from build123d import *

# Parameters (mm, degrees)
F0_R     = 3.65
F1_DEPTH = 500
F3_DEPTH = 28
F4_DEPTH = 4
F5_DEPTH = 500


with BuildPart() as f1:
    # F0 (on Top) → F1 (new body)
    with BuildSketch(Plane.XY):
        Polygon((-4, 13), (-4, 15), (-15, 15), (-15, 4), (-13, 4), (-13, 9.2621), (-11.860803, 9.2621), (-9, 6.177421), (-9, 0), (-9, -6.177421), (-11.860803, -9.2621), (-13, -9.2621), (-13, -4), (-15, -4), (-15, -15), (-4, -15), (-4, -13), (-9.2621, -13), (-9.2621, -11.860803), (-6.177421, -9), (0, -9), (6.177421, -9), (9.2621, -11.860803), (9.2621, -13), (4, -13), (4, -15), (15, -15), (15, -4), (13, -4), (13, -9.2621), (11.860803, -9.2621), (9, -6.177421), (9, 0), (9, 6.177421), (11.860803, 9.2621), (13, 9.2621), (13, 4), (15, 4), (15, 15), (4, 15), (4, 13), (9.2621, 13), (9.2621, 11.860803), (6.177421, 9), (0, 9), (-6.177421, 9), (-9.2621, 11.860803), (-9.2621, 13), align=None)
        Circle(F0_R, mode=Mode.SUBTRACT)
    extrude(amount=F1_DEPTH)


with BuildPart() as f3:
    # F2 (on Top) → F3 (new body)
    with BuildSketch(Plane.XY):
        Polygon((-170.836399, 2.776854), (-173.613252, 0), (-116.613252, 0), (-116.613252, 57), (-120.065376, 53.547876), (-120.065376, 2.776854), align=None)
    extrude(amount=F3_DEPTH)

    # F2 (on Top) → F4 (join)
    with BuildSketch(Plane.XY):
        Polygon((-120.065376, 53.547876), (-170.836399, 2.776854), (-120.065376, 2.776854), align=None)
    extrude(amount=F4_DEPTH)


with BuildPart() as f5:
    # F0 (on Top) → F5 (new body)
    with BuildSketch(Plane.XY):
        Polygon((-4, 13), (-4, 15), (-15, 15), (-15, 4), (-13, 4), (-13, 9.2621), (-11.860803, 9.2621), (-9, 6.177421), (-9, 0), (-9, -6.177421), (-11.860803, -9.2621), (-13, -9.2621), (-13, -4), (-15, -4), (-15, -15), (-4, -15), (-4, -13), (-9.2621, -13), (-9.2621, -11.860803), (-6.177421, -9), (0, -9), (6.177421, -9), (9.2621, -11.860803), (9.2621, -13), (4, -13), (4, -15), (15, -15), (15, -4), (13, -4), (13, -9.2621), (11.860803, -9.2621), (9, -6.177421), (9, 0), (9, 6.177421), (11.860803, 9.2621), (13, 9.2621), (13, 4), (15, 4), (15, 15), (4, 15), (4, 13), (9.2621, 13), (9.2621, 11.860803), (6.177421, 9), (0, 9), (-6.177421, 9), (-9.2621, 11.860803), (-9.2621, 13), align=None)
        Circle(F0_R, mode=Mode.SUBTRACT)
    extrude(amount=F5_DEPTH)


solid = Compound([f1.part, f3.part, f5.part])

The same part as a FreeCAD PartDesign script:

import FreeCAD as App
import Part
import Sketcher

V = App.Vector

doc = App.newDocument("Part")
body = doc.addObject("PartDesign::Body", "Body")

# Sketch on XY plane
sketch1 = body.newObject("Sketcher::SketchObject", "Sketch")
sketch1.AttachmentSupport = (doc.getObject("XY_Plane"), [""])
sketch1.MapMode = "FlatFace"
sketch1.addGeometry(Part.LineSegment(V(-4, 13, 0), V(-4, 15, 0)), False)
sketch1.addGeometry(Part.LineSegment(V(-4, 15, 0), V(-15, 15, 0)), False)
sketch1.addGeometry(Part.LineSegment(V(-15, 15, 0), V(-15, 4, 0)), False)
sketch1.addGeometry(Part.LineSegment(V(-15, 4, 0), V(-13, 4, 0)), False)
sketch1.addGeometry(Part.LineSegment(V(-13, 4, 0), V(-13, 9.3, 0)), False)
sketch1.addGeometry(Part.LineSegment(V(-13, 9.3, 0), V(-11.9, 9.3, 0)), False)
sketch1.addGeometry(Part.LineSegment(V(-11.9, 9.3, 0), V(-9, 6.2, 0)), False)
sketch1.addGeometry(Part.LineSegment(V(-9, 6.2, 0), V(-9, -6.2, 0)), False)
sketch1.addGeometry(Part.LineSegment(V(-9, -6.2, 0), V(-11.9, -9.3, 0)), False)
sketch1.addGeometry(Part.LineSegment(V(-11.9, -9.3, 0), V(-13, -9.3, 0)), False)
sketch1.addGeometry(Part.LineSegment(V(-13, -9.3, 0), V(-13, -4, 0)), False)
sketch1.addGeometry(Part.LineSegment(V(-13, -4, 0), V(-15, -4, 0)), False)
sketch1.addGeometry(Part.LineSegment(V(-15, -4, 0), V(-15, -15, 0)), False)
sketch1.addGeometry(Part.LineSegment(V(-15, -15, 0), V(-4, -15, 0)), False)
sketch1.addGeometry(Part.LineSegment(V(-4, -15, 0), V(-4, -13, 0)), False)
sketch1.addGeometry(Part.LineSegment(V(-4, -13, 0), V(-9.3, -13, 0)), False)
sketch1.addGeometry(Part.LineSegment(V(-9.3, -13, 0), V(-9.3, -11.9, 0)), False)
sketch1.addGeometry(Part.LineSegment(V(-9.3, -11.9, 0), V(-6.2, -9, 0)), False)
sketch1.addGeometry(Part.LineSegment(V(-6.2, -9, 0), V(6.2, -9, 0)), False)
sketch1.addGeometry(Part.LineSegment(V(6.2, -9, 0), V(9.3, -11.9, 0)), False)
sketch1.addGeometry(Part.LineSegment(V(9.3, -11.9, 0), V(9.3, -13, 0)), False)
sketch1.addGeometry(Part.LineSegment(V(9.3, -13, 0), V(4, -13, 0)), False)
sketch1.addGeometry(Part.LineSegment(V(4, -13, 0), V(4, -15, 0)), False)
sketch1.addGeometry(Part.LineSegment(V(4, -15, 0), V(15, -15, 0)), False)
sketch1.addGeometry(Part.LineSegment(V(15, -15, 0), V(15, -4, 0)), False)
sketch1.addGeometry(Part.LineSegment(V(15, -4, 0), V(13, -4, 0)), False)
sketch1.addGeometry(Part.LineSegment(V(13, -4, 0), V(13, -9.3, 0)), False)
sketch1.addGeometry(Part.LineSegment(V(13, -9.3, 0), V(11.9, -9.3, 0)), False)
sketch1.addGeometry(Part.LineSegment(V(11.9, -9.3, 0), V(9, -6.2, 0)), False)
sketch1.addGeometry(Part.LineSegment(V(9, -6.2, 0), V(9, 6.2, 0)), False)
sketch1.addGeometry(Part.LineSegment(V(9, 6.2, 0), V(11.9, 9.3, 0)), False)
sketch1.addGeometry(Part.LineSegment(V(11.9, 9.3, 0), V(13, 9.3, 0)), False)
sketch1.addGeometry(Part.LineSegment(V(13, 9.3, 0), V(13, 4, 0)), False)
sketch1.addGeometry(Part.LineSegment(V(13, 4, 0), V(15, 4, 0)), False)
sketch1.addGeometry(Part.LineSegment(V(15, 4, 0), V(15, 15, 0)), False)
sketch1.addGeometry(Part.LineSegment(V(15, 15, 0), V(4, 15, 0)), False)
sketch1.addGeometry(Part.LineSegment(V(4, 15, 0), V(4, 13, 0)), False)
sketch1.addGeometry(Part.LineSegment(V(4, 13, 0), V(9.3, 13, 0)), False)
sketch1.addGeometry(Part.LineSegment(V(9.3, 13, 0), V(9.3, 11.9, 0)), False)
sketch1.addGeometry(Part.LineSegment(V(9.3, 11.9, 0), V(6.2, 9, 0)), False)
sketch1.addGeometry(Part.LineSegment(V(6.2, 9, 0), V(-6.2, 9, 0)), False)
sketch1.addGeometry(Part.LineSegment(V(-6.2, 9, 0), V(-9.3, 11.9, 0)), False)
sketch1.addGeometry(Part.LineSegment(V(-9.3, 11.9, 0), V(-9.3, 13, 0)), False)
sketch1.addGeometry(Part.LineSegment(V(-9.3, 13, 0), V(-4, 13, 0)), False)
sketch1.addGeometry(Part.Circle(V(0, 0, 0), V(0, 0, 1), 3.6), False)
sketch1.addConstraint(Sketcher.Constraint("Coincident", 0, 2, 1, 1))
sketch1.addConstraint(Sketcher.Constraint("Coincident", 1, 2, 2, 1))
sketch1.addConstraint(Sketcher.Constraint("Coincident", 2, 2, 3, 1))
sketch1.addConstraint(Sketcher.Constraint("Coincident", 3, 2, 4, 1))
sketch1.addConstraint(Sketcher.Constraint("Coincident", 4, 2, 5, 1))
sketch1.addConstraint(Sketcher.Constraint("Coincident", 5, 2, 6, 1))
sketch1.addConstraint(Sketcher.Constraint("Coincident", 6, 2, 7, 1))
sketch1.addConstraint(Sketcher.Constraint("Coincident", 7, 2, 8, 1))
sketch1.addConstraint(Sketcher.Constraint("Coincident", 8, 2, 9, 1))
sketch1.addConstraint(Sketcher.Constraint("Coincident", 9, 2, 10, 1))
sketch1.addConstraint(Sketcher.Constraint("Coincident", 10, 2, 11, 1))
sketch1.addConstraint(Sketcher.Constraint("Coincident", 11, 2, 12, 1))
sketch1.addConstraint(Sketcher.Constraint("Coincident", 12, 2, 13, 1))
sketch1.addConstraint(Sketcher.Constraint("Coincident", 13, 2, 14, 1))
sketch1.addConstraint(Sketcher.Constraint("Coincident", 14, 2, 15, 1))
sketch1.addConstraint(Sketcher.Constraint("Coincident", 15, 2, 16, 1))
sketch1.addConstraint(Sketcher.Constraint("Coincident", 16, 2, 17, 1))
sketch1.addConstraint(Sketcher.Constraint("Coincident", 17, 2, 18, 1))
sketch1.addConstraint(Sketcher.Constraint("Coincident", 18, 2, 19, 1))
sketch1.addConstraint(Sketcher.Constraint("Coincident", 19, 2, 20, 1))
sketch1.addConstraint(Sketcher.Constraint("Coincident", 20, 2, 21, 1))
sketch1.addConstraint(Sketcher.Constraint("Coincident", 21, 2, 22, 1))
sketch1.addConstraint(Sketcher.Constraint("Coincident", 22, 2, 23, 1))
sketch1.addConstraint(Sketcher.Constraint("Coincident", 23, 2, 24, 1))
sketch1.addConstraint(Sketcher.Constraint("Coincident", 24, 2, 25, 1))
sketch1.addConstraint(Sketcher.Constraint("Coincident", 25, 2, 26, 1))
sketch1.addConstraint(Sketcher.Constraint("Coincident", 26, 2, 27, 1))
sketch1.addConstraint(Sketcher.Constraint("Coincident", 27, 2, 28, 1))
sketch1.addConstraint(Sketcher.Constraint("Coincident", 28, 2, 29, 1))
sketch1.addConstraint(Sketcher.Constraint("Coincident", 29, 2, 30, 1))
sketch1.addConstraint(Sketcher.Constraint("Coincident", 30, 2, 31, 1))
sketch1.addConstraint(Sketcher.Constraint("Coincident", 31, 2, 32, 1))
sketch1.addConstraint(Sketcher.Constraint("Coincident", 32, 2, 33, 1))
sketch1.addConstraint(Sketcher.Constraint("Coincident", 33, 2, 34, 1))
sketch1.addConstraint(Sketcher.Constraint("Coincident", 34, 2, 35, 1))
sketch1.addConstraint(Sketcher.Constraint("Coincident", 35, 2, 36, 1))
sketch1.addConstraint(Sketcher.Constraint("Coincident", 36, 2, 37, 1))
sketch1.addConstraint(Sketcher.Constraint("Coincident", 37, 2, 38, 1))
sketch1.addConstraint(Sketcher.Constraint("Coincident", 38, 2, 39, 1))
sketch1.addConstraint(Sketcher.Constraint("Coincident", 39, 2, 40, 1))
sketch1.addConstraint(Sketcher.Constraint("Coincident", 40, 2, 41, 1))
sketch1.addConstraint(Sketcher.Constraint("Coincident", 41, 2, 42, 1))
sketch1.addConstraint(Sketcher.Constraint("Coincident", 42, 2, 43, 1))
sketch1.addConstraint(Sketcher.Constraint("Coincident", 43, 2, 0, 1))
sketch1.addConstraint(Sketcher.Constraint("Vertical", 0))
sketch1.addConstraint(Sketcher.Constraint("Horizontal", 1))
sketch1.addConstraint(Sketcher.Constraint("Vertical", 2))
sketch1.addConstraint(Sketcher.Constraint("Horizontal", 3))
sketch1.addConstraint(Sketcher.Constraint("Vertical", 4))
sketch1.addConstraint(Sketcher.Constraint("Horizontal", 5))
sketch1.addConstraint(Sketcher.Constraint("Vertical", 7))
sketch1.addConstraint(Sketcher.Constraint("Horizontal", 9))
sketch1.addConstraint(Sketcher.Constraint("Vertical", 10))
sketch1.addConstraint(Sketcher.Constraint("Horizontal", 11))
sketch1.addConstraint(Sketcher.Constraint("Vertical", 12))
sketch1.addConstraint(Sketcher.Constraint("Horizontal", 13))
sketch1.addConstraint(Sketcher.Constraint("Vertical", 14))
sketch1.addConstraint(Sketcher.Constraint("Horizontal", 15))
sketch1.addConstraint(Sketcher.Constraint("Vertical", 16))
sketch1.addConstraint(Sketcher.Constraint("Horizontal", 18))
sketch1.addConstraint(Sketcher.Constraint("Vertical", 20))
sketch1.addConstraint(Sketcher.Constraint("Horizontal", 21))
sketch1.addConstraint(Sketcher.Constraint("Vertical", 22))
sketch1.addConstraint(Sketcher.Constraint("Horizontal", 23))
sketch1.addConstraint(Sketcher.Constraint("Vertical", 24))
sketch1.addConstraint(Sketcher.Constraint("Horizontal", 25))
sketch1.addConstraint(Sketcher.Constraint("Vertical", 26))
sketch1.addConstraint(Sketcher.Constraint("Horizontal", 27))
sketch1.addConstraint(Sketcher.Constraint("Vertical", 29))
sketch1.addConstraint(Sketcher.Constraint("Horizontal", 31))
sketch1.addConstraint(Sketcher.Constraint("Vertical", 32))
sketch1.addConstraint(Sketcher.Constraint("Horizontal", 33))
sketch1.addConstraint(Sketcher.Constraint("Vertical", 34))
sketch1.addConstraint(Sketcher.Constraint("Horizontal", 35))
sketch1.addConstraint(Sketcher.Constraint("Vertical", 36))
sketch1.addConstraint(Sketcher.Constraint("Horizontal", 37))
sketch1.addConstraint(Sketcher.Constraint("Vertical", 38))
sketch1.addConstraint(Sketcher.Constraint("Horizontal", 40))
sketch1.addConstraint(Sketcher.Constraint("Vertical", 42))
sketch1.addConstraint(Sketcher.Constraint("Horizontal", 43))
sketch1.addConstraint(Sketcher.Constraint("Coincident", 44, 3, -1, 1))
sketch1.addConstraint(Sketcher.Constraint("Symmetric", 0, 2, 22, 2, -1, 1))
sketch1.addConstraint(Sketcher.Constraint("Symmetric", 2, 2, 24, 2, -1, 1))
sketch1.addConstraint(Sketcher.Constraint("Symmetric", 4, 2, 26, 2, -1, 1))
sketch1.addConstraint(Sketcher.Constraint("Symmetric", 6, 2, 28, 2, -1, 1))
sketch1.addConstraint(Sketcher.Constraint("Symmetric", 8, 2, 30, 2, -1, 1))
sketch1.addConstraint(Sketcher.Constraint("Symmetric", 10, 2, 32, 2, -1, 1))
sketch1.addConstraint(Sketcher.Constraint("Symmetric", 12, 2, 34, 2, -1, 1))
sketch1.addConstraint(Sketcher.Constraint("Symmetric", 14, 2, 36, 2, -1, 1))
sketch1.addConstraint(Sketcher.Constraint("Symmetric", 16, 2, 38, 2, -1, 1))
sketch1.addConstraint(Sketcher.Constraint("Symmetric", 17, 2, 39, 2, -1, 1))
sketch1.addConstraint(Sketcher.Constraint("Symmetric", 19, 2, 41, 2, -1, 1))
sketch1.addConstraint(Sketcher.Constraint("Symmetric", 16, 2, 19, 2, -2))
sketch1.addConstraint(Sketcher.Constraint("Symmetric", 14, 2, 21, 2, -2))
sketch1.addConstraint(Sketcher.Constraint("Symmetric", 12, 2, 23, 2, -2))
sketch1.addConstraint(Sketcher.Constraint("Symmetric", 10, 2, 25, 2, -2))
sketch1.addConstraint(Sketcher.Constraint("Symmetric", 8, 2, 27, 2, -2))
sketch1.addConstraint(Sketcher.Constraint("Perpendicular", 6, 17))
sketch1.addConstraint(Sketcher.Constraint("Perpendicular", 8, 19))
sketch1.addConstraint(Sketcher.Constraint("Perpendicular", 17, 28))
sketch1.addConstraint(Sketcher.Constraint("Perpendicular", 19, 30))
sketch1.addConstraint(Sketcher.Constraint("Perpendicular", 30, 41))
sketch1.addConstraint(Sketcher.Constraint("Horizontal", 7, 2, 28, 2))
sketch1.addConstraint(Sketcher.Constraint("Horizontal", 37, 2, 42, 2))
sketch1.addConstraint(Sketcher.Constraint("Equal", 33, 0))
sketch1.addConstraint(Sketcher.Constraint("Equal", 35, 2))
sketch1.addConstraint(Sketcher.Constraint("Equal", 43, 4))
sketch1.addConstraint(Sketcher.Constraint("Equal", 40, 7))
sketch1.addConstraint(Sketcher.Constraint("Equal", 31, 16))
sketch1.addConstraint(Sketcher.Constraint("Equal", 8, 17))
sketch1.addConstraint(Sketcher.Constraint("Diameter", 44, 7.3))
sketch1.addConstraint(Sketcher.Constraint("DistanceX", 1, 2, 1, 1, 11.0))
sketch1.addConstraint(Sketcher.Constraint("DistanceX", 3, 1, 3, 2, 2.0))
sketch1.addConstraint(Sketcher.Constraint("DistanceX", 0, 2, -1, 1, 4.0))
sketch1.addConstraint(Sketcher.Constraint("DistanceX", 6, 2, -1, 1, 9.0))
sketch1.addConstraint(Sketcher.Constraint("DistanceX", 15, 2, 15, 1, 5.2621))
sketch1.addConstraint(Sketcher.Constraint("Distance", 6, 4.20707))
sketch1.addConstraint(Sketcher.Constraint("DistanceX", 5, 1, 5, 2, 1.139197))
pad1 = body.newObject("PartDesign::Pad", "Pad")
pad1.Profile = sketch1
pad1.Length = 500
body2 = doc.addObject("PartDesign::Body", "Body001")

# Sketch on XY plane
sketch2 = body2.newObject("Sketcher::SketchObject", "Sketch001")
sketch2.AttachmentSupport = (doc.getObject("XY_Plane001"), [""])
sketch2.MapMode = "FlatFace"
sketch2.addGeometry(Part.LineSegment(V(-170.8, 2.8, 0), V(-173.6, 0, 0)), False)
sketch2.addGeometry(Part.LineSegment(V(-173.6, 0, 0), V(-116.6, 0, 0)), False)
sketch2.addGeometry(Part.LineSegment(V(-116.6, 0, 0), V(-116.6, 57, 0)), False)
sketch2.addGeometry(Part.LineSegment(V(-116.6, 57, 0), V(-120.1, 53.5, 0)), False)
sketch2.addGeometry(Part.LineSegment(V(-120.1, 53.5, 0), V(-120.1, 2.8, 0)), False)
sketch2.addGeometry(Part.LineSegment(V(-120.1, 2.8, 0), V(-170.8, 2.8, 0)), False)
sketch2.addConstraint(Sketcher.Constraint("Coincident", 0, 2, 1, 1))
sketch2.addConstraint(Sketcher.Constraint("Coincident", 1, 2, 2, 1))
sketch2.addConstraint(Sketcher.Constraint("Coincident", 2, 2, 3, 1))
sketch2.addConstraint(Sketcher.Constraint("Coincident", 3, 2, 4, 1))
sketch2.addConstraint(Sketcher.Constraint("Coincident", 4, 2, 5, 1))
sketch2.addConstraint(Sketcher.Constraint("Coincident", 5, 2, 0, 1))
sketch2.addConstraint(Sketcher.Constraint("Horizontal", 1))
sketch2.addConstraint(Sketcher.Constraint("Vertical", 2))
sketch2.addConstraint(Sketcher.Constraint("Vertical", 4))
sketch2.addConstraint(Sketcher.Constraint("Horizontal", 5))
sketch2.addConstraint(Sketcher.Constraint("PointOnObject", 0, 2, -1))
sketch2.addConstraint(Sketcher.Constraint("Parallel", 0, 3))
sketch2.addConstraint(Sketcher.Constraint("Equal", 1, 2))
sketch2.addConstraint(Sketcher.Constraint("Equal", 5, 4))
sketch2.addConstraint(Sketcher.Constraint("DistanceX", 1, 1, 1, 2, 57.0))
sketch2.addConstraint(Sketcher.Constraint("DistanceX", 5, 2, -1, 1, 170.836399))
sketch2.addConstraint(Sketcher.Constraint("Distance", 3, 4.882041))
sketch2.addConstraint(Sketcher.Constraint("DistanceX", 5, 2, 5, 1, 50.771023))
pad2 = body2.newObject("PartDesign::Pad", "Pad001")
pad2.Profile = sketch2
pad2.Length = 28

# Sketch on XY plane
sketch3 = body2.newObject("Sketcher::SketchObject", "Sketch002")
sketch3.AttachmentSupport = (doc.getObject("XY_Plane001"), [""])
sketch3.MapMode = "FlatFace"
sketch3.addGeometry(Part.LineSegment(V(-120, 54, 0), V(-171, 3, 0)), False)
sketch3.addGeometry(Part.LineSegment(V(-171, 3, 0), V(-120, 3, 0)), False)
sketch3.addGeometry(Part.LineSegment(V(-120, 3, 0), V(-120, 54, 0)), False)
sketch3.addConstraint(Sketcher.Constraint("Coincident", 0, 2, 1, 1))
sketch3.addConstraint(Sketcher.Constraint("Coincident", 1, 2, 2, 1))
sketch3.addConstraint(Sketcher.Constraint("Coincident", 2, 2, 0, 1))
sketch3.addConstraint(Sketcher.Constraint("Horizontal", 1))
sketch3.addConstraint(Sketcher.Constraint("Vertical", 2))
sketch3.addConstraint(Sketcher.Constraint("Equal", 1, 2))
sketch3.addConstraint(Sketcher.Constraint("DistanceX", 0, 2, -1, 1, 170.836399))
sketch3.addConstraint(Sketcher.Constraint("Distance", 0, 71.801069))
sketch3.addConstraint(Sketcher.Constraint("DistanceY", -1, 1, 0, 2, 2.776854))
pad3 = body2.newObject("PartDesign::Pad", "Pad002")
pad3.Profile = sketch3
pad3.Length = 4
body3 = doc.addObject("PartDesign::Body", "Body002")

# Sketch on XY plane
sketch4 = body3.newObject("Sketcher::SketchObject", "Sketch003")
sketch4.AttachmentSupport = (doc.getObject("XY_Plane002"), [""])
sketch4.MapMode = "FlatFace"
sketch4.addGeometry(Part.LineSegment(V(-4, 13, 0), V(-4, 15, 0)), False)
sketch4.addGeometry(Part.LineSegment(V(-4, 15, 0), V(-15, 15, 0)), False)
sketch4.addGeometry(Part.LineSegment(V(-15, 15, 0), V(-15, 4, 0)), False)
sketch4.addGeometry(Part.LineSegment(V(-15, 4, 0), V(-13, 4, 0)), False)
sketch4.addGeometry(Part.LineSegment(V(-13, 4, 0), V(-13, 9.3, 0)), False)
sketch4.addGeometry(Part.LineSegment(V(-13, 9.3, 0), V(-11.9, 9.3, 0)), False)
sketch4.addGeometry(Part.LineSegment(V(-11.9, 9.3, 0), V(-9, 6.2, 0)), False)
sketch4.addGeometry(Part.LineSegment(V(-9, 6.2, 0), V(-9, -6.2, 0)), False)
sketch4.addGeometry(Part.LineSegment(V(-9, -6.2, 0), V(-11.9, -9.3, 0)), False)
sketch4.addGeometry(Part.LineSegment(V(-11.9, -9.3, 0), V(-13, -9.3, 0)), False)
sketch4.addGeometry(Part.LineSegment(V(-13, -9.3, 0), V(-13, -4, 0)), False)
sketch4.addGeometry(Part.LineSegment(V(-13, -4, 0), V(-15, -4, 0)), False)
sketch4.addGeometry(Part.LineSegment(V(-15, -4, 0), V(-15, -15, 0)), False)
sketch4.addGeometry(Part.LineSegment(V(-15, -15, 0), V(-4, -15, 0)), False)
sketch4.addGeometry(Part.LineSegment(V(-4, -15, 0), V(-4, -13, 0)), False)
sketch4.addGeometry(Part.LineSegment(V(-4, -13, 0), V(-9.3, -13, 0)), False)
sketch4.addGeometry(Part.LineSegment(V(-9.3, -13, 0), V(-9.3, -11.9, 0)), False)
sketch4.addGeometry(Part.LineSegment(V(-9.3, -11.9, 0), V(-6.2, -9, 0)), False)
sketch4.addGeometry(Part.LineSegment(V(-6.2, -9, 0), V(6.2, -9, 0)), False)
sketch4.addGeometry(Part.LineSegment(V(6.2, -9, 0), V(9.3, -11.9, 0)), False)
sketch4.addGeometry(Part.LineSegment(V(9.3, -11.9, 0), V(9.3, -13, 0)), False)
sketch4.addGeometry(Part.LineSegment(V(9.3, -13, 0), V(4, -13, 0)), False)
sketch4.addGeometry(Part.LineSegment(V(4, -13, 0), V(4, -15, 0)), False)
sketch4.addGeometry(Part.LineSegment(V(4, -15, 0), V(15, -15, 0)), False)
sketch4.addGeometry(Part.LineSegment(V(15, -15, 0), V(15, -4, 0)), False)
sketch4.addGeometry(Part.LineSegment(V(15, -4, 0), V(13, -4, 0)), False)
sketch4.addGeometry(Part.LineSegment(V(13, -4, 0), V(13, -9.3, 0)), False)
sketch4.addGeometry(Part.LineSegment(V(13, -9.3, 0), V(11.9, -9.3, 0)), False)
sketch4.addGeometry(Part.LineSegment(V(11.9, -9.3, 0), V(9, -6.2, 0)), False)
sketch4.addGeometry(Part.LineSegment(V(9, -6.2, 0), V(9, 6.2, 0)), False)
sketch4.addGeometry(Part.LineSegment(V(9, 6.2, 0), V(11.9, 9.3, 0)), False)
sketch4.addGeometry(Part.LineSegment(V(11.9, 9.3, 0), V(13, 9.3, 0)), False)
sketch4.addGeometry(Part.LineSegment(V(13, 9.3, 0), V(13, 4, 0)), False)
sketch4.addGeometry(Part.LineSegment(V(13, 4, 0), V(15, 4, 0)), False)
sketch4.addGeometry(Part.LineSegment(V(15, 4, 0), V(15, 15, 0)), False)
sketch4.addGeometry(Part.LineSegment(V(15, 15, 0), V(4, 15, 0)), False)
sketch4.addGeometry(Part.LineSegment(V(4, 15, 0), V(4, 13, 0)), False)
sketch4.addGeometry(Part.LineSegment(V(4, 13, 0), V(9.3, 13, 0)), False)
sketch4.addGeometry(Part.LineSegment(V(9.3, 13, 0), V(9.3, 11.9, 0)), False)
sketch4.addGeometry(Part.LineSegment(V(9.3, 11.9, 0), V(6.2, 9, 0)), False)
sketch4.addGeometry(Part.LineSegment(V(6.2, 9, 0), V(-6.2, 9, 0)), False)
sketch4.addGeometry(Part.LineSegment(V(-6.2, 9, 0), V(-9.3, 11.9, 0)), False)
sketch4.addGeometry(Part.LineSegment(V(-9.3, 11.9, 0), V(-9.3, 13, 0)), False)
sketch4.addGeometry(Part.LineSegment(V(-9.3, 13, 0), V(-4, 13, 0)), False)
sketch4.addGeometry(Part.Circle(V(0, 0, 0), V(0, 0, 1), 3.6), False)
sketch4.addConstraint(Sketcher.Constraint("Coincident", 0, 2, 1, 1))
sketch4.addConstraint(Sketcher.Constraint("Coincident", 1, 2, 2, 1))
sketch4.addConstraint(Sketcher.Constraint("Coincident", 2, 2, 3, 1))
sketch4.addConstraint(Sketcher.Constraint("Coincident", 3, 2, 4, 1))
sketch4.addConstraint(Sketcher.Constraint("Coincident", 4, 2, 5, 1))
sketch4.addConstraint(Sketcher.Constraint("Coincident", 5, 2, 6, 1))
sketch4.addConstraint(Sketcher.Constraint("Coincident", 6, 2, 7, 1))
sketch4.addConstraint(Sketcher.Constraint("Coincident", 7, 2, 8, 1))
sketch4.addConstraint(Sketcher.Constraint("Coincident", 8, 2, 9, 1))
sketch4.addConstraint(Sketcher.Constraint("Coincident", 9, 2, 10, 1))
sketch4.addConstraint(Sketcher.Constraint("Coincident", 10, 2, 11, 1))
sketch4.addConstraint(Sketcher.Constraint("Coincident", 11, 2, 12, 1))
sketch4.addConstraint(Sketcher.Constraint("Coincident", 12, 2, 13, 1))
sketch4.addConstraint(Sketcher.Constraint("Coincident", 13, 2, 14, 1))
sketch4.addConstraint(Sketcher.Constraint("Coincident", 14, 2, 15, 1))
sketch4.addConstraint(Sketcher.Constraint("Coincident", 15, 2, 16, 1))
sketch4.addConstraint(Sketcher.Constraint("Coincident", 16, 2, 17, 1))
sketch4.addConstraint(Sketcher.Constraint("Coincident", 17, 2, 18, 1))
sketch4.addConstraint(Sketcher.Constraint("Coincident", 18, 2, 19, 1))
sketch4.addConstraint(Sketcher.Constraint("Coincident", 19, 2, 20, 1))
sketch4.addConstraint(Sketcher.Constraint("Coincident", 20, 2, 21, 1))
sketch4.addConstraint(Sketcher.Constraint("Coincident", 21, 2, 22, 1))
sketch4.addConstraint(Sketcher.Constraint("Coincident", 22, 2, 23, 1))
sketch4.addConstraint(Sketcher.Constraint("Coincident", 23, 2, 24, 1))
sketch4.addConstraint(Sketcher.Constraint("Coincident", 24, 2, 25, 1))
sketch4.addConstraint(Sketcher.Constraint("Coincident", 25, 2, 26, 1))
sketch4.addConstraint(Sketcher.Constraint("Coincident", 26, 2, 27, 1))
sketch4.addConstraint(Sketcher.Constraint("Coincident", 27, 2, 28, 1))
sketch4.addConstraint(Sketcher.Constraint("Coincident", 28, 2, 29, 1))
sketch4.addConstraint(Sketcher.Constraint("Coincident", 29, 2, 30, 1))
sketch4.addConstraint(Sketcher.Constraint("Coincident", 30, 2, 31, 1))
sketch4.addConstraint(Sketcher.Constraint("Coincident", 31, 2, 32, 1))
sketch4.addConstraint(Sketcher.Constraint("Coincident", 32, 2, 33, 1))
sketch4.addConstraint(Sketcher.Constraint("Coincident", 33, 2, 34, 1))
sketch4.addConstraint(Sketcher.Constraint("Coincident", 34, 2, 35, 1))
sketch4.addConstraint(Sketcher.Constraint("Coincident", 35, 2, 36, 1))
sketch4.addConstraint(Sketcher.Constraint("Coincident", 36, 2, 37, 1))
sketch4.addConstraint(Sketcher.Constraint("Coincident", 37, 2, 38, 1))
sketch4.addConstraint(Sketcher.Constraint("Coincident", 38, 2, 39, 1))
sketch4.addConstraint(Sketcher.Constraint("Coincident", 39, 2, 40, 1))
sketch4.addConstraint(Sketcher.Constraint("Coincident", 40, 2, 41, 1))
sketch4.addConstraint(Sketcher.Constraint("Coincident", 41, 2, 42, 1))
sketch4.addConstraint(Sketcher.Constraint("Coincident", 42, 2, 43, 1))
sketch4.addConstraint(Sketcher.Constraint("Coincident", 43, 2, 0, 1))
sketch4.addConstraint(Sketcher.Constraint("Vertical", 0))
sketch4.addConstraint(Sketcher.Constraint("Horizontal", 1))
sketch4.addConstraint(Sketcher.Constraint("Vertical", 2))
sketch4.addConstraint(Sketcher.Constraint("Horizontal", 3))
sketch4.addConstraint(Sketcher.Constraint("Vertical", 4))
sketch4.addConstraint(Sketcher.Constraint("Horizontal", 5))
sketch4.addConstraint(Sketcher.Constraint("Vertical", 7))
sketch4.addConstraint(Sketcher.Constraint("Horizontal", 9))
sketch4.addConstraint(Sketcher.Constraint("Vertical", 10))
sketch4.addConstraint(Sketcher.Constraint("Horizontal", 11))
sketch4.addConstraint(Sketcher.Constraint("Vertical", 12))
sketch4.addConstraint(Sketcher.Constraint("Horizontal", 13))
sketch4.addConstraint(Sketcher.Constraint("Vertical", 14))
sketch4.addConstraint(Sketcher.Constraint("Horizontal", 15))
sketch4.addConstraint(Sketcher.Constraint("Vertical", 16))
sketch4.addConstraint(Sketcher.Constraint("Horizontal", 18))
sketch4.addConstraint(Sketcher.Constraint("Vertical", 20))
sketch4.addConstraint(Sketcher.Constraint("Horizontal", 21))
sketch4.addConstraint(Sketcher.Constraint("Vertical", 22))
sketch4.addConstraint(Sketcher.Constraint("Horizontal", 23))
sketch4.addConstraint(Sketcher.Constraint("Vertical", 24))
sketch4.addConstraint(Sketcher.Constraint("Horizontal", 25))
sketch4.addConstraint(Sketcher.Constraint("Vertical", 26))
sketch4.addConstraint(Sketcher.Constraint("Horizontal", 27))
sketch4.addConstraint(Sketcher.Constraint("Vertical", 29))
sketch4.addConstraint(Sketcher.Constraint("Horizontal", 31))
sketch4.addConstraint(Sketcher.Constraint("Vertical", 32))
sketch4.addConstraint(Sketcher.Constraint("Horizontal", 33))
sketch4.addConstraint(Sketcher.Constraint("Vertical", 34))
sketch4.addConstraint(Sketcher.Constraint("Horizontal", 35))
sketch4.addConstraint(Sketcher.Constraint("Vertical", 36))
sketch4.addConstraint(Sketcher.Constraint("Horizontal", 37))
sketch4.addConstraint(Sketcher.Constraint("Vertical", 38))
sketch4.addConstraint(Sketcher.Constraint("Horizontal", 40))
sketch4.addConstraint(Sketcher.Constraint("Vertical", 42))
sketch4.addConstraint(Sketcher.Constraint("Horizontal", 43))
sketch4.addConstraint(Sketcher.Constraint("Coincident", 44, 3, -1, 1))
sketch4.addConstraint(Sketcher.Constraint("Symmetric", 0, 2, 22, 2, -1, 1))
sketch4.addConstraint(Sketcher.Constraint("Symmetric", 2, 2, 24, 2, -1, 1))
sketch4.addConstraint(Sketcher.Constraint("Symmetric", 4, 2, 26, 2, -1, 1))
sketch4.addConstraint(Sketcher.Constraint("Symmetric", 6, 2, 28, 2, -1, 1))
sketch4.addConstraint(Sketcher.Constraint("Symmetric", 8, 2, 30, 2, -1, 1))
sketch4.addConstraint(Sketcher.Constraint("Symmetric", 10, 2, 32, 2, -1, 1))
sketch4.addConstraint(Sketcher.Constraint("Symmetric", 12, 2, 34, 2, -1, 1))
sketch4.addConstraint(Sketcher.Constraint("Symmetric", 14, 2, 36, 2, -1, 1))
sketch4.addConstraint(Sketcher.Constraint("Symmetric", 16, 2, 38, 2, -1, 1))
sketch4.addConstraint(Sketcher.Constraint("Symmetric", 17, 2, 39, 2, -1, 1))
sketch4.addConstraint(Sketcher.Constraint("Symmetric", 19, 2, 41, 2, -1, 1))
sketch4.addConstraint(Sketcher.Constraint("Symmetric", 16, 2, 19, 2, -2))
sketch4.addConstraint(Sketcher.Constraint("Symmetric", 14, 2, 21, 2, -2))
sketch4.addConstraint(Sketcher.Constraint("Symmetric", 12, 2, 23, 2, -2))
sketch4.addConstraint(Sketcher.Constraint("Symmetric", 10, 2, 25, 2, -2))
sketch4.addConstraint(Sketcher.Constraint("Symmetric", 8, 2, 27, 2, -2))
sketch4.addConstraint(Sketcher.Constraint("Perpendicular", 6, 17))
sketch4.addConstraint(Sketcher.Constraint("Perpendicular", 8, 19))
sketch4.addConstraint(Sketcher.Constraint("Perpendicular", 17, 28))
sketch4.addConstraint(Sketcher.Constraint("Perpendicular", 19, 30))
sketch4.addConstraint(Sketcher.Constraint("Perpendicular", 30, 41))
sketch4.addConstraint(Sketcher.Constraint("Horizontal", 7, 2, 28, 2))
sketch4.addConstraint(Sketcher.Constraint("Horizontal", 37, 2, 42, 2))
sketch4.addConstraint(Sketcher.Constraint("Equal", 33, 0))
sketch4.addConstraint(Sketcher.Constraint("Equal", 35, 2))
sketch4.addConstraint(Sketcher.Constraint("Equal", 43, 4))
sketch4.addConstraint(Sketcher.Constraint("Equal", 40, 7))
sketch4.addConstraint(Sketcher.Constraint("Equal", 31, 16))
sketch4.addConstraint(Sketcher.Constraint("Equal", 8, 17))
sketch4.addConstraint(Sketcher.Constraint("Diameter", 44, 7.3))
sketch4.addConstraint(Sketcher.Constraint("DistanceX", 1, 2, 1, 1, 11.0))
sketch4.addConstraint(Sketcher.Constraint("DistanceX", 3, 1, 3, 2, 2.0))
sketch4.addConstraint(Sketcher.Constraint("DistanceX", 0, 2, -1, 1, 4.0))
sketch4.addConstraint(Sketcher.Constraint("DistanceX", 6, 2, -1, 1, 9.0))
sketch4.addConstraint(Sketcher.Constraint("DistanceX", 15, 2, 15, 1, 5.2621))
sketch4.addConstraint(Sketcher.Constraint("Distance", 6, 4.20707))
sketch4.addConstraint(Sketcher.Constraint("DistanceX", 5, 1, 5, 2, 1.139197))
pad4 = body3.newObject("PartDesign::Pad", "Pad003")
pad4.Profile = sketch4
pad4.Length = 500

doc.recompute()
